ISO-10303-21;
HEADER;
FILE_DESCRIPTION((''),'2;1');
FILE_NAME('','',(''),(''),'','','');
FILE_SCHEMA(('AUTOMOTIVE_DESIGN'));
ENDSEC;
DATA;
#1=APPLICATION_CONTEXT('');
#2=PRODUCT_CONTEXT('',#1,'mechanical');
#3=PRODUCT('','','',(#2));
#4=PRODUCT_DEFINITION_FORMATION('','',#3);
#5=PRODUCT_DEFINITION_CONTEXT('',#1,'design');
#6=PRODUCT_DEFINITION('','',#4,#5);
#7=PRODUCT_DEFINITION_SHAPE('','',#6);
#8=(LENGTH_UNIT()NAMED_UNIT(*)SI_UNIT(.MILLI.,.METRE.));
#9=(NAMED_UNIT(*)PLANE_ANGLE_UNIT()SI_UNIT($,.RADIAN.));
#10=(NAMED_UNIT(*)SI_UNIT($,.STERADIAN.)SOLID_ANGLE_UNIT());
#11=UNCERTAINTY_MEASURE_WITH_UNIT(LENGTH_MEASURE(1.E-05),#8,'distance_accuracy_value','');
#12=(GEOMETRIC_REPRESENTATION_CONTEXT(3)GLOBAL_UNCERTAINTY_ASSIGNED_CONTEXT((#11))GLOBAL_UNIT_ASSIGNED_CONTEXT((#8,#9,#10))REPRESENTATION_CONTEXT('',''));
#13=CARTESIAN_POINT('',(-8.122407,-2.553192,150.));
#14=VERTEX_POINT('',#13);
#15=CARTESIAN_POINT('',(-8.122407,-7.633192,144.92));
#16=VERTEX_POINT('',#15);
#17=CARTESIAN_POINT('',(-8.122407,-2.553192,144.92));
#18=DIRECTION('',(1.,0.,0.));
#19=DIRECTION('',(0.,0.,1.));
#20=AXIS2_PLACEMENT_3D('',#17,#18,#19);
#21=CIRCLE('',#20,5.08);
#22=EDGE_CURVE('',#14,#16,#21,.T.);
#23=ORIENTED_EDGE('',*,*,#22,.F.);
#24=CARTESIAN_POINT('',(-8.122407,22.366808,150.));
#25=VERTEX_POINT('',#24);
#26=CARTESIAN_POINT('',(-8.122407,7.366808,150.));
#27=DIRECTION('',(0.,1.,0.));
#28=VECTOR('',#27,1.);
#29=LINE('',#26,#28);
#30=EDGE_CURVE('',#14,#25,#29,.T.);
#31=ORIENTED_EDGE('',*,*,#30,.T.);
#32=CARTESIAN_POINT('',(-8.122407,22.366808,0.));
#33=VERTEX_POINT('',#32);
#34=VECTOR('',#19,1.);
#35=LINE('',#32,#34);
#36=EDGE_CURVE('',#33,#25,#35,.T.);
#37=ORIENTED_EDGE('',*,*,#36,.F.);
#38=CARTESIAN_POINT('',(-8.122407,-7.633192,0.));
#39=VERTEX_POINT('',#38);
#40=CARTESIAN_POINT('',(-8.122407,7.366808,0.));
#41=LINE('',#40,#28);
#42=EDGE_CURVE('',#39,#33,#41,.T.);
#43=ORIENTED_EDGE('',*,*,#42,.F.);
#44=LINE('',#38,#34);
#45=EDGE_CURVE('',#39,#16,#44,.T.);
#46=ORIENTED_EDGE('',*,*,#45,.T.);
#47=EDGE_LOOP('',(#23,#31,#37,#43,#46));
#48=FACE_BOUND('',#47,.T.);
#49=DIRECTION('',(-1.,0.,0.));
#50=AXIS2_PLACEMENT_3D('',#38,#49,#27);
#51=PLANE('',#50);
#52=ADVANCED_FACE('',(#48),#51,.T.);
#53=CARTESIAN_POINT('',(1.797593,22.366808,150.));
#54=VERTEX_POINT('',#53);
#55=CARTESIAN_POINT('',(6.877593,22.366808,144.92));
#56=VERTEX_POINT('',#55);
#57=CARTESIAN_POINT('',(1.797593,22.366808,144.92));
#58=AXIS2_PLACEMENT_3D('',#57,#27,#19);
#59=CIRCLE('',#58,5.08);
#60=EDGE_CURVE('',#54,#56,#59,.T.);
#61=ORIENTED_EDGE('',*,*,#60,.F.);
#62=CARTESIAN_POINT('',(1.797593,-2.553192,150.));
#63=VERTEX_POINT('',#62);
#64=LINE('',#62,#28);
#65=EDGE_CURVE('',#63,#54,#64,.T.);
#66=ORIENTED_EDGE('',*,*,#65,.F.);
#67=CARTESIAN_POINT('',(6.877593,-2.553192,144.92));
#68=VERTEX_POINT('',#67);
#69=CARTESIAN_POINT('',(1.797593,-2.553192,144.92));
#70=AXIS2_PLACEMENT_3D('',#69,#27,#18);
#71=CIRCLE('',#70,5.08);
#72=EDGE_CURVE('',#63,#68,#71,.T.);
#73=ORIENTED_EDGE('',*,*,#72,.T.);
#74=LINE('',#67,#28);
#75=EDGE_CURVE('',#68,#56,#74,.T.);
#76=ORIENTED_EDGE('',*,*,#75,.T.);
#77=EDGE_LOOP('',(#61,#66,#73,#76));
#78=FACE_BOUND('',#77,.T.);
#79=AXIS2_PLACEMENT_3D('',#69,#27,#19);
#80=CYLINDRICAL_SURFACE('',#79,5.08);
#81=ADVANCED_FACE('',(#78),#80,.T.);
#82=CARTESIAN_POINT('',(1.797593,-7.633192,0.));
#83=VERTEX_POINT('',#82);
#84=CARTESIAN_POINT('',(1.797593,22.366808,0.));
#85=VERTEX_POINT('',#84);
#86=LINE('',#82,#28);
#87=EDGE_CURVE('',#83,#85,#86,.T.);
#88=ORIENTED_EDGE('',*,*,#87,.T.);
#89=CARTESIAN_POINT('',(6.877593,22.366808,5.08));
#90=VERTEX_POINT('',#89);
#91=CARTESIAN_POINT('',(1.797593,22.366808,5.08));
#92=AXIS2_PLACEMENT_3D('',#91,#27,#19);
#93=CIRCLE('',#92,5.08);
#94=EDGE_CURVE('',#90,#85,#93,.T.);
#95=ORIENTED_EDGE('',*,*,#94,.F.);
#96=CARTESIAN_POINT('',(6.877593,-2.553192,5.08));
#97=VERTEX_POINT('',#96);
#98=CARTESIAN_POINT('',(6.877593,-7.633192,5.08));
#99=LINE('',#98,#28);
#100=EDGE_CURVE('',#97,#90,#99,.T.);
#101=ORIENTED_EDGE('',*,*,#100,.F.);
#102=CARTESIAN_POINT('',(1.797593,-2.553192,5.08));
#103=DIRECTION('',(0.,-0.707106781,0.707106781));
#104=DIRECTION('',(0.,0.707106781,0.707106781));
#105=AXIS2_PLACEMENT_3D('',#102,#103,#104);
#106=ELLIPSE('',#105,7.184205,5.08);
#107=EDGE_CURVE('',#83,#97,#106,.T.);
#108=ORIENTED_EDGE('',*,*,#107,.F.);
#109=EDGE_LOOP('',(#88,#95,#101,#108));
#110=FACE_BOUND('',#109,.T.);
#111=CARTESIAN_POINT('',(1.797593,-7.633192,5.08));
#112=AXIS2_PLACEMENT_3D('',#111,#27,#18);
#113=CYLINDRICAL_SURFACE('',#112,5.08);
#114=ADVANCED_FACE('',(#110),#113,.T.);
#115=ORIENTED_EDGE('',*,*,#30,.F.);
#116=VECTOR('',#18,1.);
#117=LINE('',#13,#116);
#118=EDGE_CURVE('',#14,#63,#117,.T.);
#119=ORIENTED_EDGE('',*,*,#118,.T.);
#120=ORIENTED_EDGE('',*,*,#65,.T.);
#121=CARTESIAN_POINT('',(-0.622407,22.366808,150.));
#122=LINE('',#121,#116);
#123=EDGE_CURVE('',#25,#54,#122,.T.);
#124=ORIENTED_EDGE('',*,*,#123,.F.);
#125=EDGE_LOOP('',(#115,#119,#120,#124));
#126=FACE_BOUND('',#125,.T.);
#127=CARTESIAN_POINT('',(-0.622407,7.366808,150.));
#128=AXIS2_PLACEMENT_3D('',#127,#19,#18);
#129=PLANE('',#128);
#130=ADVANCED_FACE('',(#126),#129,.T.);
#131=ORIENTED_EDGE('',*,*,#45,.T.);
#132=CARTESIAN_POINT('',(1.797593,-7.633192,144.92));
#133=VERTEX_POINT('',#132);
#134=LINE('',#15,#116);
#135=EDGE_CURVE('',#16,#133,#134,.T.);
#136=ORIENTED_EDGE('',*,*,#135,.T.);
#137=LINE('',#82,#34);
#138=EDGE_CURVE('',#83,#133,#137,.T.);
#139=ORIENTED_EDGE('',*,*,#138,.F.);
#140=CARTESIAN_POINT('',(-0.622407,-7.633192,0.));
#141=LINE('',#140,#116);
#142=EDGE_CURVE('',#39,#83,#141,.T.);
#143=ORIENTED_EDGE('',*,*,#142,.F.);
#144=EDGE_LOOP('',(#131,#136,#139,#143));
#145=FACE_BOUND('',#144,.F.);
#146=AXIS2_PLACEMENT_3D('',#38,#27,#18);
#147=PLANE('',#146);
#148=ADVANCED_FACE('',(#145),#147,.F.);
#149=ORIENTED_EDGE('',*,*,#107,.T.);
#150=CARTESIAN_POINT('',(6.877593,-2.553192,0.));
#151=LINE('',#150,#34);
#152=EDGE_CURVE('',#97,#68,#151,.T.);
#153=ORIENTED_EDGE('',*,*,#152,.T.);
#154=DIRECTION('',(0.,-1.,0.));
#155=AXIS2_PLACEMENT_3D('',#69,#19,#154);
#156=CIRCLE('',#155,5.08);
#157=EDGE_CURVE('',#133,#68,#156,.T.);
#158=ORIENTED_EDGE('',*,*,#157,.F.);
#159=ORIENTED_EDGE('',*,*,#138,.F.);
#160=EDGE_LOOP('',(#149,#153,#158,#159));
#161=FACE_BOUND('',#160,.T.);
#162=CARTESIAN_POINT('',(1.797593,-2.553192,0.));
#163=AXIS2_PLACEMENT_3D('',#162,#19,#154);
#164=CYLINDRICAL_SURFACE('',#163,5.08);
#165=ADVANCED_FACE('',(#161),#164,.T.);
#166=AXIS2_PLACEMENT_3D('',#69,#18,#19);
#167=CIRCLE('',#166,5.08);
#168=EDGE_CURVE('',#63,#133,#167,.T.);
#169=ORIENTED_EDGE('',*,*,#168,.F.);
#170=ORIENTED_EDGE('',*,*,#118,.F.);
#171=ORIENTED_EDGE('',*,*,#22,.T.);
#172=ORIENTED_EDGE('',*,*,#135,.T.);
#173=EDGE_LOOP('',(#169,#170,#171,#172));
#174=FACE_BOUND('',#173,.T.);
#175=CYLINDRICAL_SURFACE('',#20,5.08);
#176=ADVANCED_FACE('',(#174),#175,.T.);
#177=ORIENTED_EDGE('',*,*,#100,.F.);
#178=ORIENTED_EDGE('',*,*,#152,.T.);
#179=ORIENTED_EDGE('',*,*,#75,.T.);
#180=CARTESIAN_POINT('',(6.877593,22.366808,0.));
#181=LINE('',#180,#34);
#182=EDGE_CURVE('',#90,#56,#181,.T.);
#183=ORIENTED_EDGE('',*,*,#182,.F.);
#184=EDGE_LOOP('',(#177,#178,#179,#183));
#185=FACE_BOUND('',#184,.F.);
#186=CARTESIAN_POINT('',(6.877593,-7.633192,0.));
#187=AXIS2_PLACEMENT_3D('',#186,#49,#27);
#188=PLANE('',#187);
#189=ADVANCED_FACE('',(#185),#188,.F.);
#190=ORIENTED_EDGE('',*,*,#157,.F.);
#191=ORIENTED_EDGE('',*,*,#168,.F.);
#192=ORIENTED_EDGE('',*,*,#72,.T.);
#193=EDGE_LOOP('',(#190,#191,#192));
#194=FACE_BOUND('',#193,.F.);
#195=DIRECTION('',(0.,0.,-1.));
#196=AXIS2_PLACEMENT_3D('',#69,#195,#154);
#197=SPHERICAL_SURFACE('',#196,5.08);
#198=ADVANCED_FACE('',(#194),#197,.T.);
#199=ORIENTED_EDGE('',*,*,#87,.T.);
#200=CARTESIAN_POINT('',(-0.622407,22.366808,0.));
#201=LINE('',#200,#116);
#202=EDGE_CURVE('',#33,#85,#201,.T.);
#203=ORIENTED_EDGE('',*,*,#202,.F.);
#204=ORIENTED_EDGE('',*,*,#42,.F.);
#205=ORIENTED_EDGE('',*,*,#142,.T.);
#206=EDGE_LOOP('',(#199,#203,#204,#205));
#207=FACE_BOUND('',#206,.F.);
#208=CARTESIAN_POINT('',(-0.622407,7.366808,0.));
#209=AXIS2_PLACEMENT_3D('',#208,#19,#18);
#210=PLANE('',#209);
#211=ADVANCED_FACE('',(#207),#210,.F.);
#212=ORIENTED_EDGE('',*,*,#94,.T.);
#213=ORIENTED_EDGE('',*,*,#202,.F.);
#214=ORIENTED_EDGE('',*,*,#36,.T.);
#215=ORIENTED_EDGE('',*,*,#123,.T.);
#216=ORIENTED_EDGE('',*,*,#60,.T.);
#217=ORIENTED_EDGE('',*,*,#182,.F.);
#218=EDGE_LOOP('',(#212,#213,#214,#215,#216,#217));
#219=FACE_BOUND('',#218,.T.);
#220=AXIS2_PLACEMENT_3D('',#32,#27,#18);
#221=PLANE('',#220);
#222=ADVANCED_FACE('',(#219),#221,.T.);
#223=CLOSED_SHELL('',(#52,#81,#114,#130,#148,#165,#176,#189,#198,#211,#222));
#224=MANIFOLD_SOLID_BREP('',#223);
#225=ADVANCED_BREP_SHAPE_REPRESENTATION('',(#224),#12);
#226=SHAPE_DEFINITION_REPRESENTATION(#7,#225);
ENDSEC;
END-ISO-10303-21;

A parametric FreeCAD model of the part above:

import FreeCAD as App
import Part
import Sketcher

V = App.Vector
Q = App.Units.Quantity


def edges_at(feature, points):
    """Names of the edges that pass closest to the given points."""
    edges = feature.Shape.Edges
    near = lambda p: min(range(len(edges)), key=lambda i: edges[i].distToShape(Part.Vertex(*p))[0])
    return sorted({f"Edge{near(p) + 1}" for p in points})


def add_polygon(sketch, points):
    """Adds a closed chain of lines whose ends are joined by coincident constraints."""
    first, n = sketch.GeometryCount, len(points)
    for a, b in zip(points, points[1:] + points[:1]):
        sketch.addGeometry(Part.LineSegment(App.Vector(*a, 0), App.Vector(*b, 0)), False)
    for i in range(n):
        sketch.addConstraint(Sketcher.Constraint("Coincident", first + i, 2, first + (i + 1) % n, 1))

doc = App.newDocument("Part")
body = doc.addObject("PartDesign::Body", "Body")

# Sketch on XY plane
sketch1 = doc.addObject("Sketcher::SketchObject", "Sketch")
body.addObject(sketch1)
sketch1.AttachmentSupport = (doc.XY_Plane, [""])
sketch1.MapMode = "FlatFace"
add_polygon(sketch1, [(-8.122407, 22.366808), (-8.122407, -7.633192), (6.877593, -7.633192), (6.877593, 22.366808)])  # lines 0-3
sketch1.addConstraint([
    Sketcher.Constraint("Vertical", 0),
    Sketcher.Constraint("Horizontal", 1),
    Sketcher.Constraint("Vertical", 2),
    Sketcher.Constraint("Horizontal", 3),
    Sketcher.Constraint("DistanceX", 1, 1, 1, 2, Q("15 mm")),
    Sketcher.Constraint("DistanceY", 0, 2, 0, 1, Q("30 mm")),
    Sketcher.Constraint("DistanceX", 0, 2, -1, 1, Q("8.122407 mm")),
    Sketcher.Constraint("DistanceY", 0, 2, -1, 1, Q("7.633192 mm")),
])
pad1 = doc.addObject("PartDesign::Pad", "Pad")
body.addObject(pad1)
pad1.Profile = sketch1
pad1.Length = 150
doc.recompute()

fillet = doc.addObject("PartDesign::Fillet", "Fillet")
body.addObject(fillet)
fillet.Base = (pad1, edges_at(pad1, [(6.878, -7.633, 75), (6.878, 7.367, 0)]))
fillet.Radius = 5.08
doc.recompute()

fillet2 = doc.addObject("PartDesign::Fillet", "Fillet001")
body.addObject(fillet2)
fillet2.Base = (fillet, edges_at(fillet, [(6.878, 9.907, 150)]))
fillet2.Radius = 5.08

doc.recompute()
